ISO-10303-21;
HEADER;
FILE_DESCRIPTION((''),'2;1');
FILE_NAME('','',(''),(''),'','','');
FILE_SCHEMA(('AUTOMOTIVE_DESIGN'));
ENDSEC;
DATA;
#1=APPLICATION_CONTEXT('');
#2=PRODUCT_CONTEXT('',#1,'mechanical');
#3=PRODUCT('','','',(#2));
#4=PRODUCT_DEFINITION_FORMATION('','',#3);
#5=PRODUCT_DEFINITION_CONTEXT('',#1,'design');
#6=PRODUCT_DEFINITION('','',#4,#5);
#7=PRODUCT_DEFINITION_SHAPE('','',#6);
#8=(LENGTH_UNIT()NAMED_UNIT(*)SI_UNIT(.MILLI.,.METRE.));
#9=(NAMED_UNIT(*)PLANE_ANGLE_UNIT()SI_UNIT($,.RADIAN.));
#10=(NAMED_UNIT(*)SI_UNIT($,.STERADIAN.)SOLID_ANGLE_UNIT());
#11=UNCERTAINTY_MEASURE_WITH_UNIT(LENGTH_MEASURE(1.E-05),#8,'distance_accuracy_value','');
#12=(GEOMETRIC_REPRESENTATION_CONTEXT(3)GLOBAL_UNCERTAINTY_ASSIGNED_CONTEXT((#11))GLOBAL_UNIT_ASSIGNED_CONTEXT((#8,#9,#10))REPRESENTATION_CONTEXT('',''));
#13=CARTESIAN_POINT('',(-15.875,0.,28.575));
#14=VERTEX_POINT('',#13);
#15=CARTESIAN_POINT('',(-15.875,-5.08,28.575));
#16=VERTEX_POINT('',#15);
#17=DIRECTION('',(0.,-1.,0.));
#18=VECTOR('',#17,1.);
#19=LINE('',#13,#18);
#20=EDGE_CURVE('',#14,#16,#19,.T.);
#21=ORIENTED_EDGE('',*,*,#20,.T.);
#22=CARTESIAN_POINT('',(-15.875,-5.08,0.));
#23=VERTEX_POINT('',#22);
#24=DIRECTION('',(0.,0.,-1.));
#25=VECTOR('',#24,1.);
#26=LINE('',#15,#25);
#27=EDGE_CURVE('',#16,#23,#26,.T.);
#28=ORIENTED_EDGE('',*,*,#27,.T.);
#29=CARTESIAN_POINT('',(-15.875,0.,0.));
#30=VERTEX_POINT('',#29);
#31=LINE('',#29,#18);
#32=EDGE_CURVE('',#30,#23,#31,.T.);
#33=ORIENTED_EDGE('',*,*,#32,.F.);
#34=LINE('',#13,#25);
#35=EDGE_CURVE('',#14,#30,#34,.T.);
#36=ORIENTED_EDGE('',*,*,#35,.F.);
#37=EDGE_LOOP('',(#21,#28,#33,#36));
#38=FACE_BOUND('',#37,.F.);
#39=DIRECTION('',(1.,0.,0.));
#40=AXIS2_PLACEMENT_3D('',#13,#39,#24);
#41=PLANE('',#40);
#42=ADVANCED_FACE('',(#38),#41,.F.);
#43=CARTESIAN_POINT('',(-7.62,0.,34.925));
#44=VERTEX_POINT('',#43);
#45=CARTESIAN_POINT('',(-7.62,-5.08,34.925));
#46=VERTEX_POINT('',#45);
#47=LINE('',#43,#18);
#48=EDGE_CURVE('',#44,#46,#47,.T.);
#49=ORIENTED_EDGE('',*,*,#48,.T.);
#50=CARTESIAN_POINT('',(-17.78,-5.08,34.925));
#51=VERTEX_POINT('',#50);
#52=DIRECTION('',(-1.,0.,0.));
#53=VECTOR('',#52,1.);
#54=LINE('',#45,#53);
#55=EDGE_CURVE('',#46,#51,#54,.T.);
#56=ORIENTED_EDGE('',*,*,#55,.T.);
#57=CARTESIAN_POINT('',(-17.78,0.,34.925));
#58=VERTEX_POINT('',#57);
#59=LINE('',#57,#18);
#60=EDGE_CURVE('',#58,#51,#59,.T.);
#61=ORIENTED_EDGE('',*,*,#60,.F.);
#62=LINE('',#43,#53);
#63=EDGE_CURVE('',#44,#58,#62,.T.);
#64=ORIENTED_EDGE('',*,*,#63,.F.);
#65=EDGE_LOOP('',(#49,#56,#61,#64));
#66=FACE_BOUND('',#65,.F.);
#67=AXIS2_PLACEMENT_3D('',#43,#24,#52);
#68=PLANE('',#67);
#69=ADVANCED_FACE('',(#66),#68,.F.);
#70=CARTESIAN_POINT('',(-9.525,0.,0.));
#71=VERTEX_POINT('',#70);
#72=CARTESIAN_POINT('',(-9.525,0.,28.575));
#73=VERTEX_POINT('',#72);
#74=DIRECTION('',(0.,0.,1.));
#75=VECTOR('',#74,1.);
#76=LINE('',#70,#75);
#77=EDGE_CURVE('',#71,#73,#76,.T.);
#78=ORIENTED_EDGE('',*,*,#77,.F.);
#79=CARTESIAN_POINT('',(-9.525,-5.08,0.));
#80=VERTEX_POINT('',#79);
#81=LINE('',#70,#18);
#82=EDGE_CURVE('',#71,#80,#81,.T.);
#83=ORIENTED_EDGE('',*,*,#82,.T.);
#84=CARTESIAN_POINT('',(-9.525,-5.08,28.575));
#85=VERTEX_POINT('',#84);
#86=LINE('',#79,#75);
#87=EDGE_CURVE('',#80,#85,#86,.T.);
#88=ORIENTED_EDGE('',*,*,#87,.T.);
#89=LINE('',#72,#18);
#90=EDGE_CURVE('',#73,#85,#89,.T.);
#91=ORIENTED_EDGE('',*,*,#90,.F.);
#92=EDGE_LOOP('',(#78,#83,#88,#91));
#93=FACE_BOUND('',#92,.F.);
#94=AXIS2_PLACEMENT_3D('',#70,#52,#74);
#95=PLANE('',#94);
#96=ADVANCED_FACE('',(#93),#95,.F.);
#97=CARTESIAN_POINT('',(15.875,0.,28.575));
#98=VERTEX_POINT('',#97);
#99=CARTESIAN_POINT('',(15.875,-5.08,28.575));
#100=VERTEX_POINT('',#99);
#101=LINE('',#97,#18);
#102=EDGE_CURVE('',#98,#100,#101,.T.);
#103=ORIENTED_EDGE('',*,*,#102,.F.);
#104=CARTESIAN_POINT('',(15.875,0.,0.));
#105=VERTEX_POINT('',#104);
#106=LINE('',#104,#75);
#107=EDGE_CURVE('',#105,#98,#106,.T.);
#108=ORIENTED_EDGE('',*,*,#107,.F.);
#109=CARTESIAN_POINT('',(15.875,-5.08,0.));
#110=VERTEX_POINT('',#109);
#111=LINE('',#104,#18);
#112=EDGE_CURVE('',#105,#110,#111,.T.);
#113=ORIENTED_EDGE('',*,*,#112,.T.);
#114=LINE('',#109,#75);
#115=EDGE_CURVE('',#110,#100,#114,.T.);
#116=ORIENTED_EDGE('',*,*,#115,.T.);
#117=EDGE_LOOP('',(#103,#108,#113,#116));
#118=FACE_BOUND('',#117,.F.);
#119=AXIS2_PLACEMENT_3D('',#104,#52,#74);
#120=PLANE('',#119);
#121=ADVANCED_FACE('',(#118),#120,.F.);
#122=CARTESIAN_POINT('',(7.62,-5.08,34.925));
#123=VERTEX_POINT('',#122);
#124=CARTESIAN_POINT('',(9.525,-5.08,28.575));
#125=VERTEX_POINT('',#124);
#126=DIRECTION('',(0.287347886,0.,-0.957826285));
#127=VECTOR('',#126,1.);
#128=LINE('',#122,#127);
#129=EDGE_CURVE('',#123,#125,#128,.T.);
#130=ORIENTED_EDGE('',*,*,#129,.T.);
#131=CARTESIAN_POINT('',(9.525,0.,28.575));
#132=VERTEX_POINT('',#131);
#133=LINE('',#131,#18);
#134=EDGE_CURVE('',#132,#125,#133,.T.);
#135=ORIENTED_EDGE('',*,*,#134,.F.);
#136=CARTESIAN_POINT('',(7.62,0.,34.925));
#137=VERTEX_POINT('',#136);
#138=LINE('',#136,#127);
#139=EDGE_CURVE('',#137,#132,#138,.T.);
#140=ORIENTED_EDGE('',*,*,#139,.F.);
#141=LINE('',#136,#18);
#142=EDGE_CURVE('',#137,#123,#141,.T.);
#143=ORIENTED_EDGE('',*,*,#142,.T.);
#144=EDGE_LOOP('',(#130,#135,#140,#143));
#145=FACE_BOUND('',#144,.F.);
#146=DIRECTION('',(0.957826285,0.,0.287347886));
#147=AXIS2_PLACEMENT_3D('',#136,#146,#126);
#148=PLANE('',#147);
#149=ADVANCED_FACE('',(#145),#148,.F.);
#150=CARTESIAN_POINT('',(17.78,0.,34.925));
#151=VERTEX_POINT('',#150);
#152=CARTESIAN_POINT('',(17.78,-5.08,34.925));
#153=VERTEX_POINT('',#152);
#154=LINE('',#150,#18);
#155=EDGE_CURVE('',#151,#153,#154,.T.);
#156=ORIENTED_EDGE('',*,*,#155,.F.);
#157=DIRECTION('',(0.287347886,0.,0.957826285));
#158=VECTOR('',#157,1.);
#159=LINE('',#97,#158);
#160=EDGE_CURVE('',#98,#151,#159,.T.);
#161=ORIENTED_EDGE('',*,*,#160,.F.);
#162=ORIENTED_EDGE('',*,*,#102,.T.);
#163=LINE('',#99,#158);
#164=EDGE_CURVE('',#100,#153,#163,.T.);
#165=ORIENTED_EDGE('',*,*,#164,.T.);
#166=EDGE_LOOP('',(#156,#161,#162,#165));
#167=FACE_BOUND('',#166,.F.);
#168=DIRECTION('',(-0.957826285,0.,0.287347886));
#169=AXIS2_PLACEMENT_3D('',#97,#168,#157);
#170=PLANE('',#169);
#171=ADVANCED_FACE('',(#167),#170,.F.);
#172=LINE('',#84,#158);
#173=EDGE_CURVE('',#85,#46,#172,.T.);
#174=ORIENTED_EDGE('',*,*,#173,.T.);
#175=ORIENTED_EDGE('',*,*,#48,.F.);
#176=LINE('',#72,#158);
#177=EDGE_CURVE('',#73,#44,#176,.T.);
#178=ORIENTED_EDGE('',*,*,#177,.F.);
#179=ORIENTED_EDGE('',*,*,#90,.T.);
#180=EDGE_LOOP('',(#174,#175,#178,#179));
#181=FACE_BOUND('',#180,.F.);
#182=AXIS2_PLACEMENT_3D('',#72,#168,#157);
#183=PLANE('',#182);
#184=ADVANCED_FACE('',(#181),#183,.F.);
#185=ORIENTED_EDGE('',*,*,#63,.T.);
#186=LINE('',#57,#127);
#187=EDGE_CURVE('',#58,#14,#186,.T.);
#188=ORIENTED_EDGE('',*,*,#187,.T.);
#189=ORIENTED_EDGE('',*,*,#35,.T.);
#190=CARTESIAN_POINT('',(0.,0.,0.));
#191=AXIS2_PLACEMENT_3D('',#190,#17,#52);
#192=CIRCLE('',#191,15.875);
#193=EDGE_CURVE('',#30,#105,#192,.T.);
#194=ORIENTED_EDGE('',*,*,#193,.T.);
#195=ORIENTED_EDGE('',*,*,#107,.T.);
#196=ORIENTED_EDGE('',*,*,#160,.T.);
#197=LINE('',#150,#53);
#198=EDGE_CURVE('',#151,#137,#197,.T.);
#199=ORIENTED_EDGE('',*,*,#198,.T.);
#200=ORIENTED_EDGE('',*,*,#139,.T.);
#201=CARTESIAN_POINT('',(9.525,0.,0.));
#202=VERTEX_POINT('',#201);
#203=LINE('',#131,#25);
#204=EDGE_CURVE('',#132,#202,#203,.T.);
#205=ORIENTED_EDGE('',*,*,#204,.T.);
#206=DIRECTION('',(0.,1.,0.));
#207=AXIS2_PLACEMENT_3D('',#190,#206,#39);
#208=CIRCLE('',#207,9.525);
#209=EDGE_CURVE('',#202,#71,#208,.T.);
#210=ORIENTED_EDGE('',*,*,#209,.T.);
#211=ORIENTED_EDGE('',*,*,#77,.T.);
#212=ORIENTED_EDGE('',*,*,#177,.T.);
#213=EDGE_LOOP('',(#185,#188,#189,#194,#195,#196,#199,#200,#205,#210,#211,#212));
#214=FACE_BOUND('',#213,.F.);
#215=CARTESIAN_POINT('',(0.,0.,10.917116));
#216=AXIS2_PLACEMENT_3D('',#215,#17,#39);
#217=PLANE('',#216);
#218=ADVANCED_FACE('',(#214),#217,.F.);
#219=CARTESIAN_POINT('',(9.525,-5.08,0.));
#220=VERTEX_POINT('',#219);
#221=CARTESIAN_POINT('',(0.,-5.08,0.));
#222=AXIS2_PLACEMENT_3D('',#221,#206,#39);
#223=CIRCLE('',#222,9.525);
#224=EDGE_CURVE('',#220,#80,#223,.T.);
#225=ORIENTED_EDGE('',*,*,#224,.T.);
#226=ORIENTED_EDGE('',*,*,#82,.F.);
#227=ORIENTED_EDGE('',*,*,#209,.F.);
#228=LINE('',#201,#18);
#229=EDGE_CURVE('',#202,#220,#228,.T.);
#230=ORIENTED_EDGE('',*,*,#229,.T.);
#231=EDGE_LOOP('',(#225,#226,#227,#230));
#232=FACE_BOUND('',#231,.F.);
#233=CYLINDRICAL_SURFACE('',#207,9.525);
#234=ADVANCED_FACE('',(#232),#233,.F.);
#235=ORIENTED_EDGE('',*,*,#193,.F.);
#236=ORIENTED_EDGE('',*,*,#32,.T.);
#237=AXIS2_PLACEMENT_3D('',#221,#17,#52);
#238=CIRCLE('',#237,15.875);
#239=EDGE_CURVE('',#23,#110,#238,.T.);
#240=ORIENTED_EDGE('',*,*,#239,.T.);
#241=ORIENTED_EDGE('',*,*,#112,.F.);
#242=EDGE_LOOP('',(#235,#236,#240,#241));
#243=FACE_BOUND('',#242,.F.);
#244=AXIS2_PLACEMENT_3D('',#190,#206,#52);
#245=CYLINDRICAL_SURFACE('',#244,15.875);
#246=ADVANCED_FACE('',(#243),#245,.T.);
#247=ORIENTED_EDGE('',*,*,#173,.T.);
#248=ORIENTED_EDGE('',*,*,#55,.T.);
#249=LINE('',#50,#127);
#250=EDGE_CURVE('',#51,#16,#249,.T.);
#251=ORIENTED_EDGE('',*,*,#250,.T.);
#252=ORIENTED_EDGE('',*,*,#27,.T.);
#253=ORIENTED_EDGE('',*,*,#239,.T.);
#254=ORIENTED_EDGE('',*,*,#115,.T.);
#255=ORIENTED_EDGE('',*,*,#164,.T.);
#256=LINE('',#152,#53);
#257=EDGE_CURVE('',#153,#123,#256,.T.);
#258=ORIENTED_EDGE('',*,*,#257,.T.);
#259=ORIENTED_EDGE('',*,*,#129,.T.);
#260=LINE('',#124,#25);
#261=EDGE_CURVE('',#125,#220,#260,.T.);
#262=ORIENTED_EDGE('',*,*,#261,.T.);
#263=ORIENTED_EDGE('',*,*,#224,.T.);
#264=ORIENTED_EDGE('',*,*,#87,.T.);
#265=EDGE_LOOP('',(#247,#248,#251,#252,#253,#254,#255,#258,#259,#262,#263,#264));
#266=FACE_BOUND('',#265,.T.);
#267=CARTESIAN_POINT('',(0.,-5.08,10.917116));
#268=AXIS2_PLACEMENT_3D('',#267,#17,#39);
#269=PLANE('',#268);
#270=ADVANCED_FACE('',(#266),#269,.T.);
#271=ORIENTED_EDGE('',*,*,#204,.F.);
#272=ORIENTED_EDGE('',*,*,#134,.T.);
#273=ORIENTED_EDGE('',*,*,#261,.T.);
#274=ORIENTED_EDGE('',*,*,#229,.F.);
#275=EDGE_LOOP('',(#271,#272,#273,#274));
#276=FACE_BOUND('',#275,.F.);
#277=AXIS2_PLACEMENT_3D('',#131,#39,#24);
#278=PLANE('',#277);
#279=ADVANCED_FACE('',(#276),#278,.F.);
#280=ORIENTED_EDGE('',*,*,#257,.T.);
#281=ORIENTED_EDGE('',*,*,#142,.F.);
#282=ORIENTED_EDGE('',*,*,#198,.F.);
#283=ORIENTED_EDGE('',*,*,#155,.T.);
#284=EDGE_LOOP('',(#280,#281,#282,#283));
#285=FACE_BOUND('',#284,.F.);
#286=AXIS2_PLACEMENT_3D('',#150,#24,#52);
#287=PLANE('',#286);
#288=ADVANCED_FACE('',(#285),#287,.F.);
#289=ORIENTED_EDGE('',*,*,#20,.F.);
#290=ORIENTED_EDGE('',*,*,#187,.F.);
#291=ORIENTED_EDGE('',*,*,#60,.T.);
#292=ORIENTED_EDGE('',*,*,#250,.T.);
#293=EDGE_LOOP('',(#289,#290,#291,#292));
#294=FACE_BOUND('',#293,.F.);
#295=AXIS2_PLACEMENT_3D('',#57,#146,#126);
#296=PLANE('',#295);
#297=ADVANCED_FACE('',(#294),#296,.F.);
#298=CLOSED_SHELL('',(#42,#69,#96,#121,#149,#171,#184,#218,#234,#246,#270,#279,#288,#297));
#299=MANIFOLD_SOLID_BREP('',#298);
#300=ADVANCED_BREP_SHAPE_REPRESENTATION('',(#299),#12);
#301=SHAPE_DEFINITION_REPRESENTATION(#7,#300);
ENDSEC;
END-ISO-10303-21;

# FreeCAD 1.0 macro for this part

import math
import FreeCAD as App
import Part
import Sketcher
Q = App.Units.Quantity

doc = App.newDocument("Part")
body = doc.addObject("PartDesign::Body", "Body")

sketch1 = body.newObject("Sketcher::SketchObject", "Sketch")
sketch1.AttachmentSupport = (doc.getObject("XZ_Plane"), [""])
sketch1.MapMode = "FlatFace"
sketch1.addGeometry([
    Part.LineSegment(App.Vector(-16, 29, 0), App.Vector(-16, 0, 0)),
    Part.ArcOfCircle(Part.Circle(App.Vector(0, 0, 0), App.Vector(0, 0, 1), 16), math.radians(180), math.radians(360)),
    Part.LineSegment(App.Vector(16, 0, 0), App.Vector(16, 29, 0)),
    Part.LineSegment(App.Vector(16, 29, 0), App.Vector(18, 35, 0)),
    Part.LineSegment(App.Vector(18, 35, 0), App.Vector(8, 35, 0)),
    Part.LineSegment(App.Vector(8, 35, 0), App.Vector(10, 29, 0)),
    Part.LineSegment(App.Vector(10, 29, 0), App.Vector(10, 0, 0)),
    Part.ArcOfCircle(Part.Circle(App.Vector(0, 0, 0), App.Vector(0, 0, 1), 10), math.radians(180), math.radians(360)),
    Part.LineSegment(App.Vector(-10, 0, 0), App.Vector(-10, 29, 0)),
    Part.LineSegment(App.Vector(-10, 29, 0), App.Vector(-8, 35, 0)),
    Part.LineSegment(App.Vector(-8, 35, 0), App.Vector(-18, 35, 0)),
    Part.LineSegment(App.Vector(-18, 35, 0), App.Vector(-16, 29, 0)),
], False)
sketch1.addConstraint([
    Sketcher.Constraint("Tangent", 0, 2, 1, 1),
    Sketcher.Constraint("Tangent", 1, 2, 2, 1),
    Sketcher.Constraint("Coincident", 2, 2, 3, 1),
    Sketcher.Constraint("Coincident", 3, 2, 4, 1),
    Sketcher.Constraint("Coincident", 4, 2, 5, 1),
    Sketcher.Constraint("Coincident", 5, 2, 6, 1),
    Sketcher.Constraint("Tangent", 6, 2, 7, 2),
    Sketcher.Constraint("Tangent", 7, 1, 8, 1),
    Sketcher.Constraint("Coincident", 8, 2, 9, 1),
    Sketcher.Constraint("Coincident", 9, 2, 10, 1),
    Sketcher.Constraint("Coincident", 10, 2, 11, 1),
    Sketcher.Constraint("Coincident", 11, 2, 0, 1),
    Sketcher.Constraint("Vertical", 0),
    Sketcher.Constraint("Vertical", 2),
    Sketcher.Constraint("Horizontal", 4),
    Sketcher.Constraint("Vertical", 6),
    Sketcher.Constraint("Vertical", 8),
    Sketcher.Constraint("Horizontal", 10),
    Sketcher.Constraint("Coincident", 1, 3, -1, 1),
    Sketcher.Constraint("Coincident", 7, 3, -1, 1),
    Sketcher.Constraint("Symmetric", 4, 2, 9, 2, -2),
    Sketcher.Constraint("Parallel", 3, 9),
    Sketcher.Constraint("Parallel", 5, 11),
    Sketcher.Constraint("Horizontal", 2, 2, 5, 2),
    Sketcher.Constraint("Horizontal", 5, 2, 8, 2),
    Sketcher.Constraint("Horizontal", 8, 2, 11, 2),
    Sketcher.Constraint("DistanceX", 4, 2, 4, 1, Q("0.4 in")),
    Sketcher.Constraint("Radius", 1, Q("0.625 in")),
    Sketcher.Constraint("Radius", 7, Q("0.375 in")),
    Sketcher.Constraint("DistanceY", 0, 2, 0, 1, Q("1.125 in")),
    Sketcher.Constraint("DistanceY", 2, 2, 3, 2, Q("0.25 in")),
])
pad1 = body.newObject("PartDesign::Pad", "Pad")
pad1.Profile = sketch1
pad1.Length = Q("0.2 in")

doc.recompute()
